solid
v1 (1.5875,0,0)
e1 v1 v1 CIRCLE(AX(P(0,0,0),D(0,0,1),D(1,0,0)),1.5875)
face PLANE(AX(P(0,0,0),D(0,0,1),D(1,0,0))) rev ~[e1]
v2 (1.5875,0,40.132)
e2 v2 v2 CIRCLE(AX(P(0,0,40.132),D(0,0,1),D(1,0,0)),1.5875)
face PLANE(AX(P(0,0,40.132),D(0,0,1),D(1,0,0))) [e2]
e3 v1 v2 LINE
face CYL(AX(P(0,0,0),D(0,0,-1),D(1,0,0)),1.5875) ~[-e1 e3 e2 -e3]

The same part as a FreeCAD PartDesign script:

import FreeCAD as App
import Part
import Sketcher

V = App.Vector
Q = App.Units.Quantity

doc = App.newDocument("Part")
body = doc.addObject("PartDesign::Body", "Body")

sketch1 = doc.addObject("Sketcher::SketchObject", "Sketch")
body.addObject(sketch1)
sketch1.AttachmentSupport = (doc.XY_Plane, [""])
sketch1.MapMode = "FlatFace"
sketch1.addGeometry(Part.Circle(V(0, 0, 0), V(0, 0, 1), 1.6), False)
sketch1.addConstraint(Sketcher.Constraint("Coincident", 0, 3, -1, 1))
sketch1.addConstraint(Sketcher.Constraint("Diameter", 0, Q("0.125 in")))
pad1 = doc.addObject("PartDesign::Pad", "Pad")
body.addObject(pad1)
pad1.Profile = sketch1
pad1.Length = Q("1.58 in")

doc.recompute()
